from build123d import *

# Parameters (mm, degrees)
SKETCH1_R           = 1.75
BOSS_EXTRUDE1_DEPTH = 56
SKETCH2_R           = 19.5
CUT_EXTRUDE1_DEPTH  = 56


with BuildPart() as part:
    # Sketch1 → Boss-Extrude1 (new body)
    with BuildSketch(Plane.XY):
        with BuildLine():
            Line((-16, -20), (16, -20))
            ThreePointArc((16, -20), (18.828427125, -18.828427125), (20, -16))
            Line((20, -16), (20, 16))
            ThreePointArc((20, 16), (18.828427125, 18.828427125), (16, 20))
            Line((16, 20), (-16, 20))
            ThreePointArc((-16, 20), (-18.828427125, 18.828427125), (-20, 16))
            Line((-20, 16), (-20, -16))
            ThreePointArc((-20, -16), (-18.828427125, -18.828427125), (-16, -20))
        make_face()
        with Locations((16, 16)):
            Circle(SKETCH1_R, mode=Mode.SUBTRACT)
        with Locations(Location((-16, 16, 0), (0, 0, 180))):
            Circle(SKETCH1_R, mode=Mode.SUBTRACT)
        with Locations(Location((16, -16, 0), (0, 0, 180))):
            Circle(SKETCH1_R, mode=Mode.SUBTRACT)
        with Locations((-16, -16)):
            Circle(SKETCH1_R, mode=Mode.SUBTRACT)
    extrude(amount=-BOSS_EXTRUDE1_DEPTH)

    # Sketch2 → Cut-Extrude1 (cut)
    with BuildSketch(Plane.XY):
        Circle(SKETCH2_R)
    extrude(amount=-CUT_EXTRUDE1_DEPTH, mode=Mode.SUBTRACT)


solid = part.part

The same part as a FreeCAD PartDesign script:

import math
import FreeCAD as App
import Part
import Sketcher

V = App.Vector

doc = App.newDocument("Part")
params = doc.addObject("Spreadsheet::Sheet", "Params")
for row, (alias, value) in enumerate([
    ("sketch1_radius", "4 mm"),
    ("sketch1_diameter", "3.5 mm"),
    ("sketch1_width", "32 mm"),
    ("pad1_length", "56 mm"),
    ("sketch2_diameter", "39 mm"),
    ("pocket1_length", "56 mm"),
], start=1):
    params.set(f"A{row}", alias)
    params.set(f"B{row}", "=" + value)
    params.setAlias(f"B{row}", alias)

body = doc.addObject("PartDesign::Body", "Body")

# Sketch on XY plane
sketch1 = doc.addObject("Sketcher::SketchObject", "Sketch")
body.addObject(sketch1)
sketch1.AttachmentSupport = (doc.XY_Plane, [""])
sketch1.MapMode = "FlatFace"
sketch1.addGeometry([
    Part.LineSegment(V(-16, -20, 0), V(16, -20, 0)),  # 0
    Part.ArcOfCircle(Part.Circle(V(16, -16, 0), V(0, 0, 1), 4), math.radians(-90), math.radians(0)),  # 1
    Part.LineSegment(V(20, -16, 0), V(20, 16, 0)),  # 2
    Part.ArcOfCircle(Part.Circle(V(16, 16, 0), V(0, 0, 1), 4), math.radians(0), math.radians(90)),  # 3
    Part.LineSegment(V(16, 20, 0), V(-16, 20, 0)),  # 4
    Part.ArcOfCircle(Part.Circle(V(-16, 16, 0), V(0, 0, 1), 4), math.radians(90), math.radians(180)),  # 5
    Part.LineSegment(V(-20, 16, 0), V(-20, -16, 0)),  # 6
    Part.ArcOfCircle(Part.Circle(V(-16, -16, 0), V(0, 0, 1), 4), math.radians(180), math.radians(270)),  # 7
    Part.Circle(V(-16, -16, 0), V(0, 0, 1), 1.8),  # 8
    Part.Circle(V(16, -16, 0), V(0, 0, 1), 1.8),  # 9
    Part.Circle(V(-16, 16, 0), V(0, 0, 1), 1.8),  # 10
    Part.Circle(V(16, 16, 0), V(0, 0, 1), 1.8),  # 11
], False)
sketch1.addConstraint([
    Sketcher.Constraint("Tangent", 0, 2, 1, 1),
    Sketcher.Constraint("Tangent", 1, 2, 2, 1),
    Sketcher.Constraint("Tangent", 2, 2, 3, 1),
    Sketcher.Constraint("Tangent", 3, 2, 4, 1),
    Sketcher.Constraint("Tangent", 4, 2, 5, 1),
    Sketcher.Constraint("Tangent", 5, 2, 6, 1),
    Sketcher.Constraint("Tangent", 6, 2, 7, 1),
    Sketcher.Constraint("Tangent", 7, 2, 0, 1),
    Sketcher.Constraint("Horizontal", 0),
    Sketcher.Constraint("Vertical", 2),
    Sketcher.Constraint("Horizontal", 4),
    Sketcher.Constraint("Vertical", 6),
    Sketcher.Constraint("Coincident", 8, 3, 7, 3),
    Sketcher.Constraint("Coincident", 9, 3, 1, 3),
    Sketcher.Constraint("Coincident", 10, 3, 5, 3),
    Sketcher.Constraint("Coincident", 11, 3, 3, 3),
    Sketcher.Constraint("Equal", 1, 3),
    Sketcher.Constraint("Equal", 3, 5),
    Sketcher.Constraint("Equal", 5, 7),
    Sketcher.Constraint("Equal", 8, 9),
    Sketcher.Constraint("Equal", 9, 10),
    Sketcher.Constraint("Equal", 10, 11),
    Sketcher.Constraint("Symmetric", 1, 3, 5, 3, -1, 1),
    Sketcher.Constraint("Equal", 4, 2),
    Sketcher.Constraint("Radius", 1, 4.0),
    Sketcher.Constraint("Diameter", 8, 3.5),
    Sketcher.Constraint("DistanceX", 0, 1, 0, 2, 32.0),
])
sketch1.setExpression("Constraints[24]", "Params.sketch1_radius")
sketch1.setExpression("Constraints[25]", "Params.sketch1_diameter")
sketch1.setExpression("Constraints[26]", "Params.sketch1_width")
pad1 = doc.addObject("PartDesign::Pad", "Pad")
body.addObject(pad1)
pad1.Profile = sketch1
pad1.setExpression("Length", "Params.pad1_length")
pad1.Reversed = True

# Sketch on XY plane
sketch2 = doc.addObject("Sketcher::SketchObject", "Sketch001")
body.addObject(sketch2)
sketch2.AttachmentSupport = (doc.XY_Plane, [""])
sketch2.MapMode = "FlatFace"
sketch2.addGeometry(Part.Circle(V(0, 0, 0), V(0, 0, 1), 20), False)
sketch2.addConstraint([
    Sketcher.Constraint("Coincident", 0, 3, -1, 1),
    Sketcher.Constraint("Diameter", 0, 39.0),
])
sketch2.setExpression("Constraints[1]", "Params.sketch2_diameter")
pocket1 = doc.addObject("PartDesign::Pocket", "Pocket")
body.addObject(pocket1)
pocket1.Profile = sketch2
pocket1.setExpression("Length", "Params.pocket1_length")

doc.recompute()
